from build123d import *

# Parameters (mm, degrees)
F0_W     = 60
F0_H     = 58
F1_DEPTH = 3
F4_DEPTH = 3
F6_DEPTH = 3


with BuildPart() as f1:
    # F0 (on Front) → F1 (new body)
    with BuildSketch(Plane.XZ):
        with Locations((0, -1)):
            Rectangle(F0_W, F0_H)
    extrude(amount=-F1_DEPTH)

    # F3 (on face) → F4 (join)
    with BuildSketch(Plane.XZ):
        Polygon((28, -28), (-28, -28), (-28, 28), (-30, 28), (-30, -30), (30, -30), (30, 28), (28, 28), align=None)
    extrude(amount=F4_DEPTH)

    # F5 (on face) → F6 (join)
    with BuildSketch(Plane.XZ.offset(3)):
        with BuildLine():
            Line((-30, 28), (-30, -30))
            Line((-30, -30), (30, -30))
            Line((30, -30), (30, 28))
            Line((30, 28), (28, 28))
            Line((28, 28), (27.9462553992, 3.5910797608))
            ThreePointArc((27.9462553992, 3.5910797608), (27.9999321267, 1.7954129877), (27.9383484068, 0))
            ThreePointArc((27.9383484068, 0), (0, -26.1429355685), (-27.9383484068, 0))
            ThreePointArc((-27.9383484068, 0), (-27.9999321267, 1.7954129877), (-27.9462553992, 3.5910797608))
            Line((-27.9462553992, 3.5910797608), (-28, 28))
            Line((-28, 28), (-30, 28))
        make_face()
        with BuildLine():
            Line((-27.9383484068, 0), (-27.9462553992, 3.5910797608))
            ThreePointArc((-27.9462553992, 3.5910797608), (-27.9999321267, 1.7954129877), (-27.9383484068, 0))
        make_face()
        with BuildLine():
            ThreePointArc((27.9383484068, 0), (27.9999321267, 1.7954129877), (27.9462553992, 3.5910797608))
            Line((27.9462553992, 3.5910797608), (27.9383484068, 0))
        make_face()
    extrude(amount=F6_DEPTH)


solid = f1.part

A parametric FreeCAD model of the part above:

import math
import FreeCAD as App
import Part
import Sketcher

V = App.Vector


def add_polygon(sketch, points):
    """Adds a closed chain of lines whose ends are joined by coincident constraints."""
    first, n = sketch.GeometryCount, len(points)
    for a, b in zip(points, points[1:] + points[:1]):
        sketch.addGeometry(Part.LineSegment(App.Vector(*a, 0), App.Vector(*b, 0)), False)
    for i in range(n):
        sketch.addConstraint(Sketcher.Constraint("Coincident", first + i, 2, first + (i + 1) % n, 1))

doc = App.newDocument("Part")
params = doc.addObject("Spreadsheet::Sheet", "Params")
for row, (alias, value) in enumerate([
    ("sketch1_width", "60 mm"),
    ("sketch1_height", "58 mm"),
    ("pad1_length", "3 mm"),
    ("sketch2_width", "56 mm"),
    ("sketch2_width2", "2 mm"),
    ("sketch2_height", "58 mm"),
    ("pad2_length", "3 mm"),
    ("sketch3_radius", "28 mm"),
    ("sketch3_width", "60 mm"),
    ("sketch3_width2", "2 mm"),
    ("sketch3_height", "58 mm"),
    ("pad3_length", "3 mm"),
], start=1):
    params.set(f"A{row}", alias)
    params.set(f"B{row}", "=" + value)
    params.setAlias(f"B{row}", alias)

body = doc.addObject("PartDesign::Body", "Body")

# Sketch on XZ plane
sketch1 = body.newObject("Sketcher::SketchObject", "Sketch")
sketch1.AttachmentSupport = (doc.getObject("XZ_Plane"), [""])
sketch1.MapMode = "FlatFace"
add_polygon(sketch1, [(-30, 28), (-30, -30), (30, -30), (30, 28)])  # lines 0-3
sketch1.addConstraint(Sketcher.Constraint("Vertical", 0))
sketch1.addConstraint(Sketcher.Constraint("Horizontal", 1))
sketch1.addConstraint(Sketcher.Constraint("Vertical", 2))
sketch1.addConstraint(Sketcher.Constraint("Horizontal", 3))
sketch1.addConstraint(Sketcher.Constraint("DistanceX", 1, 1, 1, 2, 60.0))
sketch1.addConstraint(Sketcher.Constraint("DistanceY", 0, 2, 0, 1, 58.0))
sketch1.addConstraint(Sketcher.Constraint("DistanceX", 0, 2, -1, 1, 30.0))
sketch1.addConstraint(Sketcher.Constraint("DistanceY", 0, 2, -1, 1, 30.0))
sketch1.setExpression("Constraints[8]", "Params.sketch1_width")
sketch1.setExpression("Constraints[9]", "Params.sketch1_height")
pad1 = body.newObject("PartDesign::Pad", "Pad")
pad1.Profile = sketch1
pad1.setExpression("Length", "Params.pad1_length")
pad1.Reversed = True

# Sketch on XZ plane
sketch2 = body.newObject("Sketcher::SketchObject", "Sketch001")
sketch2.AttachmentSupport = (doc.getObject("XZ_Plane"), [""])
sketch2.MapMode = "FlatFace"
add_polygon(sketch2, [(28, -28), (-28, -28), (-28, 28), (-30, 28), (-30, -30), (30, -30), (30, 28), (28, 28)])  # lines 0-7
sketch2.addConstraint(Sketcher.Constraint("Horizontal", 0))
sketch2.addConstraint(Sketcher.Constraint("Vertical", 1))
sketch2.addConstraint(Sketcher.Constraint("Horizontal", 2))
sketch2.addConstraint(Sketcher.Constraint("Vertical", 3))
sketch2.addConstraint(Sketcher.Constraint("Horizontal", 4))
sketch2.addConstraint(Sketcher.Constraint("Vertical", 5))
sketch2.addConstraint(Sketcher.Constraint("Horizontal", 6))
sketch2.addConstraint(Sketcher.Constraint("Vertical", 7))
sketch2.addConstraint(Sketcher.Constraint("Symmetric", 0, 2, 6, 2, -1, 1))
sketch2.addConstraint(Sketcher.Constraint("Symmetric", 2, 2, 5, 2, -2))
sketch2.addConstraint(Sketcher.Constraint("Equal", 0, 1))
sketch2.addConstraint(Sketcher.Constraint("DistanceX", 0, 2, 0, 1, 56.0))
sketch2.addConstraint(Sketcher.Constraint("DistanceX", 2, 2, 2, 1, 2.0))
sketch2.addConstraint(Sketcher.Constraint("DistanceY", 3, 2, 3, 1, 58.0))
sketch2.setExpression("Constraints[19]", "Params.sketch2_width")
sketch2.setExpression("Constraints[20]", "Params.sketch2_width2")
sketch2.setExpression("Constraints[21]", "Params.sketch2_height")
pad2 = body.newObject("PartDesign::Pad", "Pad001")
pad2.Profile = sketch2
pad2.setExpression("Length", "Params.pad2_length")

# Sketch on XZ plane
sketch3 = body.newObject("Sketcher::SketchObject", "Sketch002")
sketch3.AttachmentSupport = (doc.getObject("XZ_Plane"), [""])
sketch3.MapMode = "FlatFace"
sketch3.AttachmentOffset = App.Placement(V(0, 0, 3), App.Rotation())
sketch3.addGeometry(Part.LineSegment(V(-30, 28, 0), V(-30, -30, 0)), False)
sketch3.addGeometry(Part.LineSegment(V(-30, -30, 0), V(30, -30, 0)), False)
sketch3.addGeometry(Part.LineSegment(V(30, -30, 0), V(30, 28, 0)), False)
sketch3.addGeometry(Part.LineSegment(V(30, 28, 0), V(28, 28, 0)), False)
sketch3.addGeometry(Part.LineSegment(V(28, 28, 0), V(27.9, 3.6, 0)), False)
sketch3.addGeometry(Part.LineSegment(V(27.9, 3.6, 0), V(27.9, 0, 0)), False)
sketch3.addGeometry(Part.ArcOfCircle(Part.Circle(V(0, 1.9, 0), V(0, 0, 1), 28), math.radians(-176), math.radians(-4)), False)
sketch3.addGeometry(Part.LineSegment(V(-27.9, 0, 0), V(-27.9, 3.6, 0)), False)
sketch3.addGeometry(Part.LineSegment(V(-27.9, 3.6, 0), V(-28, 28, 0)), False)
sketch3.addGeometry(Part.LineSegment(V(-28, 28, 0), V(-30, 28, 0)), False)
sketch3.addConstraint(Sketcher.Constraint("Coincident", 0, 2, 1, 1))
sketch3.addConstraint(Sketcher.Constraint("Coincident", 1, 2, 2, 1))
sketch3.addConstraint(Sketcher.Constraint("Coincident", 2, 2, 3, 1))
sketch3.addConstraint(Sketcher.Constraint("Coincident", 3, 2, 4, 1))
sketch3.addConstraint(Sketcher.Constraint("Coincident", 4, 2, 5, 1))
sketch3.addConstraint(Sketcher.Constraint("Coincident", 5, 2, 6, 2))
sketch3.addConstraint(Sketcher.Constraint("Coincident", 6, 1, 7, 1))
sketch3.addConstraint(Sketcher.Constraint("Coincident", 7, 2, 8, 1))
sketch3.addConstraint(Sketcher.Constraint("Coincident", 8, 2, 9, 1))
sketch3.addConstraint(Sketcher.Constraint("Coincident", 9, 2, 0, 1))
sketch3.addConstraint(Sketcher.Constraint("Vertical", 0))
sketch3.addConstraint(Sketcher.Constraint("Horizontal", 1))
sketch3.addConstraint(Sketcher.Constraint("Vertical", 2))
sketch3.addConstraint(Sketcher.Constraint("Horizontal", 3))
sketch3.addConstraint(Sketcher.Constraint("Horizontal", 9))
sketch3.addConstraint(Sketcher.Constraint("Symmetric", 5, 2, 6, 1, -1, 1))
sketch3.addConstraint(Sketcher.Constraint("Symmetric", 4, 2, 7, 2, -2))
sketch3.addConstraint(Sketcher.Constraint("Symmetric", 3, 2, 8, 2, -2))
sketch3.addConstraint(Sketcher.Constraint("PointOnObject", 6, 3, -2))
sketch3.addConstraint(Sketcher.Constraint("Parallel", 4, 5))
sketch3.addConstraint(Sketcher.Constraint("Equal", 3, 9))
sketch3.addConstraint(Sketcher.Constraint("Radius", 6, 28.0))
sketch3.addConstraint(Sketcher.Constraint("DistanceX", 1, 1, 1, 2, 60.0))
sketch3.addConstraint(Sketcher.Constraint("DistanceX", 3, 2, 3, 1, 2.0))
sketch3.addConstraint(Sketcher.Constraint("DistanceY", 0, 2, 0, 1, 58.0))
sketch3.addConstraint(Sketcher.Constraint("DistanceY", 0, 2, -1, 1, 30.0))
sketch3.addConstraint(Sketcher.Constraint("Distance", 4, 24.408979))
sketch3.addConstraint(Sketcher.Constraint("DistanceX", -1, 1, 5, 2, 27.938348))
sketch3.setExpression("Constraints[21]", "Params.sketch3_radius")
sketch3.setExpression("Constraints[22]", "Params.sketch3_width")
sketch3.setExpression("Constraints[23]", "Params.sketch3_width2")
sketch3.setExpression("Constraints[24]", "Params.sketch3_height")
pad3 = body.newObject("PartDesign::Pad", "Pad002")
pad3.Profile = sketch3
pad3.setExpression("Length", "Params.pad3_length")

doc.recompute()
